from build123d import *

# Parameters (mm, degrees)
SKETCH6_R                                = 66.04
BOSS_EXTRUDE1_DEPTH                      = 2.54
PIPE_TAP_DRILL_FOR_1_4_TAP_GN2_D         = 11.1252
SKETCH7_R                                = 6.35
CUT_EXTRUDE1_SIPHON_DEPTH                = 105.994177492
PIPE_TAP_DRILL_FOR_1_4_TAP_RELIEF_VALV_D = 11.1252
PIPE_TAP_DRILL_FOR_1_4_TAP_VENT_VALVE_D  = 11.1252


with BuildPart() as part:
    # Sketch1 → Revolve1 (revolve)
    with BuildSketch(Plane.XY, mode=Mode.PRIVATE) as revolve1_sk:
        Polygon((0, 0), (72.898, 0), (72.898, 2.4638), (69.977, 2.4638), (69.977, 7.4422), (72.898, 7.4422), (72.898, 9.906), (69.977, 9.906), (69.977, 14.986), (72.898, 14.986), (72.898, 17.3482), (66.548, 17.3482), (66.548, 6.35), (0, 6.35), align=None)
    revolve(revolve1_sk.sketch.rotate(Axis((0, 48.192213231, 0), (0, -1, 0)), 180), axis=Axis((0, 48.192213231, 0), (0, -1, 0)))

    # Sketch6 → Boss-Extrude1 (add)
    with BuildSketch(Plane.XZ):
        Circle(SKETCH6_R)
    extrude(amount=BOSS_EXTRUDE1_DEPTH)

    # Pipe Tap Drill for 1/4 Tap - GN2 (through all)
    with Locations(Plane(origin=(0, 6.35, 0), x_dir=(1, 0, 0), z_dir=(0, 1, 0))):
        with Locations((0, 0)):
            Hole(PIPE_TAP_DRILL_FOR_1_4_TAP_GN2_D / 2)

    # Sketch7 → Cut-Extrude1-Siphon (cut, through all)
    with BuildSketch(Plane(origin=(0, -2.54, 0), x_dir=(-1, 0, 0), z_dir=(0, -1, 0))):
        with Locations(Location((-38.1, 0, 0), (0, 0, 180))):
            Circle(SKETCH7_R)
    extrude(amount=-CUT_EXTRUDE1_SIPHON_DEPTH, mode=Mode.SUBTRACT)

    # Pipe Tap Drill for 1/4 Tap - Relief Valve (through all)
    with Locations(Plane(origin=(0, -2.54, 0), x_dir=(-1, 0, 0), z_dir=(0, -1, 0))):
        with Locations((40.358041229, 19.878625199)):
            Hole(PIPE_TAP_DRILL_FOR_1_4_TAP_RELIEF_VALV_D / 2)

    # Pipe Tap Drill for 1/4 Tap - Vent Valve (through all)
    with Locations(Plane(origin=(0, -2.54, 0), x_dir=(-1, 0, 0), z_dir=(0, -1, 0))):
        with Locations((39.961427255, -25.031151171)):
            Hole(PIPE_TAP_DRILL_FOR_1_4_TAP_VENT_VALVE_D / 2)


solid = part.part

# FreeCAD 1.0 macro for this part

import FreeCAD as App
import Part
import Sketcher
from FreeCAD import Vector
Q = App.Units.Quantity


def add_polygon(sketch, points):
    """Adds a closed chain of lines whose ends are joined by coincident constraints."""
    first, n = sketch.GeometryCount, len(points)
    for a, b in zip(points, points[1:] + points[:1]):
        sketch.addGeometry(Part.LineSegment(App.Vector(*a, 0), App.Vector(*b, 0)), False)
    for i in range(n):
        sketch.addConstraint(Sketcher.Constraint("Coincident", first + i, 2, first + (i + 1) % n, 1))

doc = App.newDocument("Part")
body = doc.addObject("PartDesign::Body", "Body")

# Sketch on XY plane
sketch1 = doc.addObject("Sketcher::SketchObject", "Sketch")
body.addObject(sketch1)
sketch1.AttachmentSupport = (doc.XY_Plane, [""])
sketch1.MapMode = "FlatFace"
add_polygon(sketch1, [(0, 0), (72.9, 0), (72.9, 2.5), (70, 2.5), (70, 7.4), (72.9, 7.4), (72.9, 9.9), (70, 9.9), (70, 15), (72.9, 15), (72.9, 17.3), (66.5, 17.3), (66.5, 6.3), (0, 6.3)])  # lines 0-13
sketch1.addConstraint(Sketcher.Constraint("Horizontal", 0))
sketch1.addConstraint(Sketcher.Constraint("Vertical", 1))
sketch1.addConstraint(Sketcher.Constraint("Horizontal", 2))
sketch1.addConstraint(Sketcher.Constraint("Vertical", 3))
sketch1.addConstraint(Sketcher.Constraint("Horizontal", 4))
sketch1.addConstraint(Sketcher.Constraint("Vertical", 5))
sketch1.addConstraint(Sketcher.Constraint("Horizontal", 6))
sketch1.addConstraint(Sketcher.Constraint("Vertical", 7))
sketch1.addConstraint(Sketcher.Constraint("Horizontal", 8))
sketch1.addConstraint(Sketcher.Constraint("Vertical", 9))
sketch1.addConstraint(Sketcher.Constraint("Horizontal", 10))
sketch1.addConstraint(Sketcher.Constraint("Vertical", 11))
sketch1.addConstraint(Sketcher.Constraint("Horizontal", 12))
sketch1.addConstraint(Sketcher.Constraint("Vertical", 13))
sketch1.addConstraint(Sketcher.Constraint("Coincident", 13, 2, -1, 1))
sketch1.addConstraint(Sketcher.Constraint("Vertical", 1, 2, 4, 2))
sketch1.addConstraint(Sketcher.Constraint("Vertical", 3, 2, 6, 2))
sketch1.addConstraint(Sketcher.Constraint("Vertical", 5, 2, 8, 2))
sketch1.addConstraint(Sketcher.Constraint("Equal", 1, 5))
sketch1.addConstraint(Sketcher.Constraint("Equal", 10, 13))
sketch1.addConstraint(Sketcher.Constraint("DistanceY", 7, 1, 7, 2, Q("0.2 in")))
sketch1.addConstraint(Sketcher.Constraint("DistanceX", 0, 1, 0, 2, Q("2.87 in")))
sketch1.addConstraint(Sketcher.Constraint("DistanceX", 10, 2, 10, 1, Q("0.25 in")))
sketch1.addConstraint(Sketcher.Constraint("DistanceX", 2, 2, 2, 1, Q("0.115 in")))
sketch1.addConstraint(Sketcher.Constraint("DistanceY", 1, 1, 1, 2, Q("0.097 in")))
sketch1.addConstraint(Sketcher.Constraint("DistanceY", 3, 1, 3, 2, Q("0.196 in")))
sketch1.addConstraint(Sketcher.Constraint("DistanceY", 9, 1, 9, 2, Q("0.093 in")))
revolution = doc.addObject("PartDesign::Revolution", "Revolution")
body.addObject(revolution)
revolution.Profile = sketch1
revolution.ReferenceAxis = (sketch1, ["V_Axis"])
revolution.Angle = 360

# Sketch on XZ plane
sketch2 = doc.addObject("Sketcher::SketchObject", "Sketch001")
body.addObject(sketch2)
sketch2.AttachmentSupport = (doc.XZ_Plane, [""])
sketch2.MapMode = "FlatFace"
sketch2.addGeometry(Part.Circle(Vector(0, 0, 0), Vector(0, 0, 1), 66), False)
sketch2.addConstraint(Sketcher.Constraint("Coincident", 0, 3, -1, 1))
sketch2.addConstraint(Sketcher.Constraint("Diameter", 0, Q("5.2 in")))
pad1 = doc.addObject("PartDesign::Pad", "Pad")
body.addObject(pad1)
pad1.Profile = sketch2
pad1.Length = Q("0.1 in")

# Sketch on XZ plane
sketch3 = doc.addObject("Sketcher::SketchObject", "Sketch002")
body.addObject(sketch3)
sketch3.AttachmentSupport = (doc.XZ_Plane, [""])
sketch3.MapMode = "FlatFace"
sketch3.AttachmentOffset = App.Placement(Vector(0, 0, -0.25 * 25.4), App.Rotation())
sketch3.addGeometry(Part.Circle(Vector(0, 0, 0), Vector(0, 0, 1), 6), False)
sketch3.addConstraint(Sketcher.Constraint("Coincident", 0, 3, -1, 1))
sketch3.addConstraint(Sketcher.Constraint("Diameter", 0, Q("0.438 in")))
doc.recompute()
hole = doc.addObject("PartDesign::Hole", "Hole")
body.addObject(hole)
hole.Profile = sketch3
hole.ThreadType = "None"
hole.Diameter = Q("0.438 in")
hole.DepthType = "ThroughAll"
hole.Reversed = True

# Sketch on XZ plane
sketch4 = doc.addObject("Sketcher::SketchObject", "Sketch003")
body.addObject(sketch4)
sketch4.AttachmentSupport = (doc.XZ_Plane, [""])
sketch4.MapMode = "FlatFace"
sketch4.AttachmentOffset = App.Placement(Vector(0, 0, 0.1 * 25.4), App.Rotation())
sketch4.addGeometry(Part.Circle(Vector(38, 0, 0), Vector(0, 0, 1), 6), False)
sketch4.addConstraint(Sketcher.Constraint("PointOnObject", 0, 3, -1))
sketch4.addConstraint(Sketcher.Constraint("Diameter", 0, Q("0.5 in")))
sketch4.addConstraint(Sketcher.Constraint("DistanceX", -1, 1, 0, 3, Q("1.5 in")))
pocket1 = doc.addObject("PartDesign::Pocket", "Pocket")
body.addObject(pocket1)
pocket1.Profile = sketch4
pocket1.Type = "ThroughAll"

# Sketch on XZ plane
sketch5 = doc.addObject("Sketcher::SketchObject", "Sketch004")
body.addObject(sketch5)
sketch5.AttachmentSupport = (doc.XZ_Plane, [""])
sketch5.MapMode = "FlatFace"
sketch5.AttachmentOffset = App.Placement(Vector(0, 0, 0.1 * 25.4), App.Rotation())
sketch5.addGeometry(Part.Circle(Vector(-40, -20, 0), Vector(0, 0, 1), 6), False)
sketch5.addConstraint(Sketcher.Constraint("Diameter", 0, Q("0.438 in")))
sketch5.addConstraint(Sketcher.Constraint("DistanceX", 0, 3, -1, 1, Q("40.358041 mm")))
sketch5.addConstraint(Sketcher.Constraint("DistanceY", 0, 3, -1, 1, Q("19.878625 mm")))
doc.recompute()
hole2 = doc.addObject("PartDesign::Hole", "Hole001")
body.addObject(hole2)
hole2.Profile = sketch5
hole2.ThreadType = "None"
hole2.Diameter = Q("0.438 in")
hole2.DepthType = "ThroughAll"

# Sketch on XZ plane
sketch6 = doc.addObject("Sketcher::SketchObject", "Sketch005")
body.addObject(sketch6)
sketch6.AttachmentSupport = (doc.XZ_Plane, [""])
sketch6.MapMode = "FlatFace"
sketch6.AttachmentOffset = App.Placement(Vector(0, 0, 0.1 * 25.4), App.Rotation())
sketch6.addGeometry(Part.Circle(Vector(-40, 25, 0), Vector(0, 0, 1), 6), False)
sketch6.addConstraint(Sketcher.Constraint("Diameter", 0, Q("0.438 in")))
sketch6.addConstraint(Sketcher.Constraint("DistanceY", -1, 1, 0, 3, Q("25.031151 mm")))
sketch6.addConstraint(Sketcher.Constraint("DistanceX", 0, 3, -1, 1, Q("39.961427 mm")))
doc.recompute()
hole3 = doc.addObject("PartDesign::Hole", "Hole002")
body.addObject(hole3)
hole3.Profile = sketch6
hole3.ThreadType = "None"
hole3.Diameter = Q("0.438 in")
hole3.DepthType = "ThroughAll"

doc.recompute()
